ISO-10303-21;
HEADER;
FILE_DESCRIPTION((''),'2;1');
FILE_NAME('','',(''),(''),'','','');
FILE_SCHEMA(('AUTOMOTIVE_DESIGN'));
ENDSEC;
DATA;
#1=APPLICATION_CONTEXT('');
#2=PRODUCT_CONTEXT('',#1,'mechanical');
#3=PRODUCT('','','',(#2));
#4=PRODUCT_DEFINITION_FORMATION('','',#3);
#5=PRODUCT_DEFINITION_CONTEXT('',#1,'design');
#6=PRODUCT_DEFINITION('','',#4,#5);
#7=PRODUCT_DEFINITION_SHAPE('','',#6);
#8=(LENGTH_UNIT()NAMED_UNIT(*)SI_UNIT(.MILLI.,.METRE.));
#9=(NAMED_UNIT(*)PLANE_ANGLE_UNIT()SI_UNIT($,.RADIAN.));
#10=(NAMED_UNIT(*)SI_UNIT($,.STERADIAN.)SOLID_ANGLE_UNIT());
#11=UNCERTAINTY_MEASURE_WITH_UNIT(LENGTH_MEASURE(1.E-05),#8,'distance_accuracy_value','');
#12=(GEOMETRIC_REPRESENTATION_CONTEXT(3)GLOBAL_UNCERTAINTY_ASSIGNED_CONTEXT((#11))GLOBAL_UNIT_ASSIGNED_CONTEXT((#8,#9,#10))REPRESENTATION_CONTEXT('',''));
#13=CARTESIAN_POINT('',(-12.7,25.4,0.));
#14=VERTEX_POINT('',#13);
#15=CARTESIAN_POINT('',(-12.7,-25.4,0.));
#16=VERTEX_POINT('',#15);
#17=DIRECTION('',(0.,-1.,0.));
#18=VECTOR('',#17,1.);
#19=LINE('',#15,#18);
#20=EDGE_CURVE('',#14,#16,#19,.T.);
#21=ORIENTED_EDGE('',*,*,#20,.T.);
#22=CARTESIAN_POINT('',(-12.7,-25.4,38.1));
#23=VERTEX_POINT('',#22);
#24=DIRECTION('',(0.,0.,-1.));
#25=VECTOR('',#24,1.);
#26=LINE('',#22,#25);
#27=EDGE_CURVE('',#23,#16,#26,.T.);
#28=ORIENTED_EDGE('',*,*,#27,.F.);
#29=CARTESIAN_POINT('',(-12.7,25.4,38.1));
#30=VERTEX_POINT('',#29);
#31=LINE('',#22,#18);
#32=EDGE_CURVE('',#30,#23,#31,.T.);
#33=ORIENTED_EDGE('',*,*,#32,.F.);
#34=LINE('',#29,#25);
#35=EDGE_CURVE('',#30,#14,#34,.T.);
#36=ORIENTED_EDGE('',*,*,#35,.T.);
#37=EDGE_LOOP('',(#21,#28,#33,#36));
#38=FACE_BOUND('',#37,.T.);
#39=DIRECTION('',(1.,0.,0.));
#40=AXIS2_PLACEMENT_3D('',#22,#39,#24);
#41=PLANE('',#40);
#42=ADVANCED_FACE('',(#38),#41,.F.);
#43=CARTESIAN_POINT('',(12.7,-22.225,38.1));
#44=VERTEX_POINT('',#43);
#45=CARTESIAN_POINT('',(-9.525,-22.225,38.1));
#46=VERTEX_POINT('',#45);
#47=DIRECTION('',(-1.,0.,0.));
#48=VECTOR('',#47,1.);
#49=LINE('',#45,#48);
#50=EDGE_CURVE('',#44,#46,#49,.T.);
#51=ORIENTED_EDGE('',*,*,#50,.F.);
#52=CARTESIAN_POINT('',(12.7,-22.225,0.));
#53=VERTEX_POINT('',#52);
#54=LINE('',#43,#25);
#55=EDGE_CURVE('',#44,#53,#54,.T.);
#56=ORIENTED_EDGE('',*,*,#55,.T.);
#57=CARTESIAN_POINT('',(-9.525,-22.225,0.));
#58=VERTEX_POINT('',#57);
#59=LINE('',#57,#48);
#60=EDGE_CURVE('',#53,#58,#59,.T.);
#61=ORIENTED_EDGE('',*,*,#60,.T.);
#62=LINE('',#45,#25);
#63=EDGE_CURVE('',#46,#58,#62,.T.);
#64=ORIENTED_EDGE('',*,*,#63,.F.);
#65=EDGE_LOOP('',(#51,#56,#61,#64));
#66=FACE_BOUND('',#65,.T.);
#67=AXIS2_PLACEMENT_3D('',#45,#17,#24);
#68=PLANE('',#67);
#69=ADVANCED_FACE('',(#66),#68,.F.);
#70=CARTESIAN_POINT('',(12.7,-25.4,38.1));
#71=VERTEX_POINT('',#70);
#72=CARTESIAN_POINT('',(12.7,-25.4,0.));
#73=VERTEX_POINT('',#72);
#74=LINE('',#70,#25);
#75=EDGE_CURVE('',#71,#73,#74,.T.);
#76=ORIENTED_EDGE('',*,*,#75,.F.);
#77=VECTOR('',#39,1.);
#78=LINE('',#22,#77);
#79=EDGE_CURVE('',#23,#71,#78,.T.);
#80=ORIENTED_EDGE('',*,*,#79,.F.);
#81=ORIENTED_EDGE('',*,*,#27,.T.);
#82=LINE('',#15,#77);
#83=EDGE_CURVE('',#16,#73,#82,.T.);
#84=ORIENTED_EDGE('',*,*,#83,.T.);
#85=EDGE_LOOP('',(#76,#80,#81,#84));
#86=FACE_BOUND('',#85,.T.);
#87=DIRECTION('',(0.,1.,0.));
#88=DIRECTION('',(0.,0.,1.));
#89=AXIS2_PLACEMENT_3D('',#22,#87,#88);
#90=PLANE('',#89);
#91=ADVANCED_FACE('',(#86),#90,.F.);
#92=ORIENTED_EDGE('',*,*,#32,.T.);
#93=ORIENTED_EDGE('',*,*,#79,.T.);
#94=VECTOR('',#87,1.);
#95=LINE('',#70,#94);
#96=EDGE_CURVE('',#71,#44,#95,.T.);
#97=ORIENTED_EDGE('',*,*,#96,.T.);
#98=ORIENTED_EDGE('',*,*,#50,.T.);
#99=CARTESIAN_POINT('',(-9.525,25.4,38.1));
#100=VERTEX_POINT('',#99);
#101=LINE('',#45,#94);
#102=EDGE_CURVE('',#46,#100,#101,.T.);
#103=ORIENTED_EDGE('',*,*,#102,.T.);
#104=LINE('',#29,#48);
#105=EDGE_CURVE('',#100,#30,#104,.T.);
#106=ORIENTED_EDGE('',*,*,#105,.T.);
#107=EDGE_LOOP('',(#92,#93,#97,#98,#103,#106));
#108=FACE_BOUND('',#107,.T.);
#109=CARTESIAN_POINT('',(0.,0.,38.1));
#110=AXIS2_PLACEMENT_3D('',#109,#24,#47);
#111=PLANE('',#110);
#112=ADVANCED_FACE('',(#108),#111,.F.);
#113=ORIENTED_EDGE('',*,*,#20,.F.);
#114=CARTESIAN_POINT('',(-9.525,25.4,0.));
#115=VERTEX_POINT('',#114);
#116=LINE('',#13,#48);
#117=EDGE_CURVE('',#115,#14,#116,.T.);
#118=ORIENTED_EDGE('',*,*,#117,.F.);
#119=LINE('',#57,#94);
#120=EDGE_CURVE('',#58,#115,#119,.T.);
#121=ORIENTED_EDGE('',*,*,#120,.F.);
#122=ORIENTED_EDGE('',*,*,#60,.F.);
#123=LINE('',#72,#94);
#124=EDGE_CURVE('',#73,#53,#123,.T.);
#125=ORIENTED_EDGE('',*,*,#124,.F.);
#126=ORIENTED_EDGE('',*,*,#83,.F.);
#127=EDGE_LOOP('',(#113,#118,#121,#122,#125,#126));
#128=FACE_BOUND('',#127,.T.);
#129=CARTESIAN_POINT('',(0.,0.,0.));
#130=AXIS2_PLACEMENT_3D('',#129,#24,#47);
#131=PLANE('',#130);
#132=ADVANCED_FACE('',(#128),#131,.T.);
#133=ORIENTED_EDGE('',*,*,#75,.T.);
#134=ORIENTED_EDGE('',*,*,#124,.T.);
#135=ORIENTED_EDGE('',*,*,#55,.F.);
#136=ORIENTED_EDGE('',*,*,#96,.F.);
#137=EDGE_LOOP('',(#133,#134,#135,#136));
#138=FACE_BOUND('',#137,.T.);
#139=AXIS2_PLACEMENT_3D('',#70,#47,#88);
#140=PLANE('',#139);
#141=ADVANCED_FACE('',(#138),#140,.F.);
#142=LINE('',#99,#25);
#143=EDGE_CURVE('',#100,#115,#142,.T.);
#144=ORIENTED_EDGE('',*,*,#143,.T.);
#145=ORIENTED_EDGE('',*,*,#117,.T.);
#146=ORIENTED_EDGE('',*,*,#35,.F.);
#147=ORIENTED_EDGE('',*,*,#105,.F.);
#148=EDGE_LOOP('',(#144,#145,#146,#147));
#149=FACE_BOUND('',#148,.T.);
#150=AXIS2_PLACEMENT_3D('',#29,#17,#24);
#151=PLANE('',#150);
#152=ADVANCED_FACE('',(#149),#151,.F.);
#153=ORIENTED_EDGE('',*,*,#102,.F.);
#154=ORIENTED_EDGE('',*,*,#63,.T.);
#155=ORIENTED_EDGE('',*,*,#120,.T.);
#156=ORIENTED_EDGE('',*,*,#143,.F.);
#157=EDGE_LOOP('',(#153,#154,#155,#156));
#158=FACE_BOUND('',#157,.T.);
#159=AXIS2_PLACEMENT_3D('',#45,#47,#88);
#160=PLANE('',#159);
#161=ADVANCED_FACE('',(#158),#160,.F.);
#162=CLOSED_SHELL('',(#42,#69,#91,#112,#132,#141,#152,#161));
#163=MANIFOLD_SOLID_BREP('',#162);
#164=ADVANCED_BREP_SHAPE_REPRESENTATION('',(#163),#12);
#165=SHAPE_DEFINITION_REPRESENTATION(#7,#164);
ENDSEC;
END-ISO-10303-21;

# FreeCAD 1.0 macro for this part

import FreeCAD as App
import Part
import Sketcher

V = App.Vector
Q = App.Units.Quantity


def add_polygon(sketch, points):
    """Adds a closed chain of lines whose ends are joined by coincident constraints."""
    first, n = sketch.GeometryCount, len(points)
    for a, b in zip(points, points[1:] + points[:1]):
        sketch.addGeometry(Part.LineSegment(App.Vector(*a, 0), App.Vector(*b, 0)), False)
    for i in range(n):
        sketch.addConstraint(Sketcher.Constraint("Coincident", first + i, 2, first + (i + 1) % n, 1))

doc = App.newDocument("Part")
body = doc.addObject("PartDesign::Body", "Body")

# Sketch on XY plane
sketch1 = doc.addObject("Sketcher::SketchObject", "Sketch")
body.addObject(sketch1)
sketch1.AttachmentSupport = (doc.XY_Plane, [""])
sketch1.MapMode = "FlatFace"
add_polygon(sketch1, [(12.7, -22.225), (-9.525, -22.225), (-9.525, 25.4), (-12.7, 25.4), (-12.7, -25.4), (12.7, -25.4)])  # lines 0-5
sketch1.addConstraint([
    Sketcher.Constraint("Horizontal", 0),
    Sketcher.Constraint("Vertical", 1),
    Sketcher.Constraint("Horizontal", 2),
    Sketcher.Constraint("Vertical", 3),
    Sketcher.Constraint("Horizontal", 4),
    Sketcher.Constraint("Vertical", 5),
    Sketcher.Constraint("Symmetric", 2, 2, 4, 2, -1, 1),
    Sketcher.Constraint("Equal", 2, 5),
    Sketcher.Constraint("DistanceX", 4, 1, 4, 2, Q("1 in")),
    Sketcher.Constraint("DistanceY", 3, 2, 3, 1, Q("2 in")),
    Sketcher.Constraint("DistanceX", 0, 2, 0, 1, Q("0.875 in")),
])
pad1 = doc.addObject("PartDesign::Pad", "Pad")
body.addObject(pad1)
pad1.Profile = sketch1
pad1.Length = Q("1.5 in")

doc.recompute()
